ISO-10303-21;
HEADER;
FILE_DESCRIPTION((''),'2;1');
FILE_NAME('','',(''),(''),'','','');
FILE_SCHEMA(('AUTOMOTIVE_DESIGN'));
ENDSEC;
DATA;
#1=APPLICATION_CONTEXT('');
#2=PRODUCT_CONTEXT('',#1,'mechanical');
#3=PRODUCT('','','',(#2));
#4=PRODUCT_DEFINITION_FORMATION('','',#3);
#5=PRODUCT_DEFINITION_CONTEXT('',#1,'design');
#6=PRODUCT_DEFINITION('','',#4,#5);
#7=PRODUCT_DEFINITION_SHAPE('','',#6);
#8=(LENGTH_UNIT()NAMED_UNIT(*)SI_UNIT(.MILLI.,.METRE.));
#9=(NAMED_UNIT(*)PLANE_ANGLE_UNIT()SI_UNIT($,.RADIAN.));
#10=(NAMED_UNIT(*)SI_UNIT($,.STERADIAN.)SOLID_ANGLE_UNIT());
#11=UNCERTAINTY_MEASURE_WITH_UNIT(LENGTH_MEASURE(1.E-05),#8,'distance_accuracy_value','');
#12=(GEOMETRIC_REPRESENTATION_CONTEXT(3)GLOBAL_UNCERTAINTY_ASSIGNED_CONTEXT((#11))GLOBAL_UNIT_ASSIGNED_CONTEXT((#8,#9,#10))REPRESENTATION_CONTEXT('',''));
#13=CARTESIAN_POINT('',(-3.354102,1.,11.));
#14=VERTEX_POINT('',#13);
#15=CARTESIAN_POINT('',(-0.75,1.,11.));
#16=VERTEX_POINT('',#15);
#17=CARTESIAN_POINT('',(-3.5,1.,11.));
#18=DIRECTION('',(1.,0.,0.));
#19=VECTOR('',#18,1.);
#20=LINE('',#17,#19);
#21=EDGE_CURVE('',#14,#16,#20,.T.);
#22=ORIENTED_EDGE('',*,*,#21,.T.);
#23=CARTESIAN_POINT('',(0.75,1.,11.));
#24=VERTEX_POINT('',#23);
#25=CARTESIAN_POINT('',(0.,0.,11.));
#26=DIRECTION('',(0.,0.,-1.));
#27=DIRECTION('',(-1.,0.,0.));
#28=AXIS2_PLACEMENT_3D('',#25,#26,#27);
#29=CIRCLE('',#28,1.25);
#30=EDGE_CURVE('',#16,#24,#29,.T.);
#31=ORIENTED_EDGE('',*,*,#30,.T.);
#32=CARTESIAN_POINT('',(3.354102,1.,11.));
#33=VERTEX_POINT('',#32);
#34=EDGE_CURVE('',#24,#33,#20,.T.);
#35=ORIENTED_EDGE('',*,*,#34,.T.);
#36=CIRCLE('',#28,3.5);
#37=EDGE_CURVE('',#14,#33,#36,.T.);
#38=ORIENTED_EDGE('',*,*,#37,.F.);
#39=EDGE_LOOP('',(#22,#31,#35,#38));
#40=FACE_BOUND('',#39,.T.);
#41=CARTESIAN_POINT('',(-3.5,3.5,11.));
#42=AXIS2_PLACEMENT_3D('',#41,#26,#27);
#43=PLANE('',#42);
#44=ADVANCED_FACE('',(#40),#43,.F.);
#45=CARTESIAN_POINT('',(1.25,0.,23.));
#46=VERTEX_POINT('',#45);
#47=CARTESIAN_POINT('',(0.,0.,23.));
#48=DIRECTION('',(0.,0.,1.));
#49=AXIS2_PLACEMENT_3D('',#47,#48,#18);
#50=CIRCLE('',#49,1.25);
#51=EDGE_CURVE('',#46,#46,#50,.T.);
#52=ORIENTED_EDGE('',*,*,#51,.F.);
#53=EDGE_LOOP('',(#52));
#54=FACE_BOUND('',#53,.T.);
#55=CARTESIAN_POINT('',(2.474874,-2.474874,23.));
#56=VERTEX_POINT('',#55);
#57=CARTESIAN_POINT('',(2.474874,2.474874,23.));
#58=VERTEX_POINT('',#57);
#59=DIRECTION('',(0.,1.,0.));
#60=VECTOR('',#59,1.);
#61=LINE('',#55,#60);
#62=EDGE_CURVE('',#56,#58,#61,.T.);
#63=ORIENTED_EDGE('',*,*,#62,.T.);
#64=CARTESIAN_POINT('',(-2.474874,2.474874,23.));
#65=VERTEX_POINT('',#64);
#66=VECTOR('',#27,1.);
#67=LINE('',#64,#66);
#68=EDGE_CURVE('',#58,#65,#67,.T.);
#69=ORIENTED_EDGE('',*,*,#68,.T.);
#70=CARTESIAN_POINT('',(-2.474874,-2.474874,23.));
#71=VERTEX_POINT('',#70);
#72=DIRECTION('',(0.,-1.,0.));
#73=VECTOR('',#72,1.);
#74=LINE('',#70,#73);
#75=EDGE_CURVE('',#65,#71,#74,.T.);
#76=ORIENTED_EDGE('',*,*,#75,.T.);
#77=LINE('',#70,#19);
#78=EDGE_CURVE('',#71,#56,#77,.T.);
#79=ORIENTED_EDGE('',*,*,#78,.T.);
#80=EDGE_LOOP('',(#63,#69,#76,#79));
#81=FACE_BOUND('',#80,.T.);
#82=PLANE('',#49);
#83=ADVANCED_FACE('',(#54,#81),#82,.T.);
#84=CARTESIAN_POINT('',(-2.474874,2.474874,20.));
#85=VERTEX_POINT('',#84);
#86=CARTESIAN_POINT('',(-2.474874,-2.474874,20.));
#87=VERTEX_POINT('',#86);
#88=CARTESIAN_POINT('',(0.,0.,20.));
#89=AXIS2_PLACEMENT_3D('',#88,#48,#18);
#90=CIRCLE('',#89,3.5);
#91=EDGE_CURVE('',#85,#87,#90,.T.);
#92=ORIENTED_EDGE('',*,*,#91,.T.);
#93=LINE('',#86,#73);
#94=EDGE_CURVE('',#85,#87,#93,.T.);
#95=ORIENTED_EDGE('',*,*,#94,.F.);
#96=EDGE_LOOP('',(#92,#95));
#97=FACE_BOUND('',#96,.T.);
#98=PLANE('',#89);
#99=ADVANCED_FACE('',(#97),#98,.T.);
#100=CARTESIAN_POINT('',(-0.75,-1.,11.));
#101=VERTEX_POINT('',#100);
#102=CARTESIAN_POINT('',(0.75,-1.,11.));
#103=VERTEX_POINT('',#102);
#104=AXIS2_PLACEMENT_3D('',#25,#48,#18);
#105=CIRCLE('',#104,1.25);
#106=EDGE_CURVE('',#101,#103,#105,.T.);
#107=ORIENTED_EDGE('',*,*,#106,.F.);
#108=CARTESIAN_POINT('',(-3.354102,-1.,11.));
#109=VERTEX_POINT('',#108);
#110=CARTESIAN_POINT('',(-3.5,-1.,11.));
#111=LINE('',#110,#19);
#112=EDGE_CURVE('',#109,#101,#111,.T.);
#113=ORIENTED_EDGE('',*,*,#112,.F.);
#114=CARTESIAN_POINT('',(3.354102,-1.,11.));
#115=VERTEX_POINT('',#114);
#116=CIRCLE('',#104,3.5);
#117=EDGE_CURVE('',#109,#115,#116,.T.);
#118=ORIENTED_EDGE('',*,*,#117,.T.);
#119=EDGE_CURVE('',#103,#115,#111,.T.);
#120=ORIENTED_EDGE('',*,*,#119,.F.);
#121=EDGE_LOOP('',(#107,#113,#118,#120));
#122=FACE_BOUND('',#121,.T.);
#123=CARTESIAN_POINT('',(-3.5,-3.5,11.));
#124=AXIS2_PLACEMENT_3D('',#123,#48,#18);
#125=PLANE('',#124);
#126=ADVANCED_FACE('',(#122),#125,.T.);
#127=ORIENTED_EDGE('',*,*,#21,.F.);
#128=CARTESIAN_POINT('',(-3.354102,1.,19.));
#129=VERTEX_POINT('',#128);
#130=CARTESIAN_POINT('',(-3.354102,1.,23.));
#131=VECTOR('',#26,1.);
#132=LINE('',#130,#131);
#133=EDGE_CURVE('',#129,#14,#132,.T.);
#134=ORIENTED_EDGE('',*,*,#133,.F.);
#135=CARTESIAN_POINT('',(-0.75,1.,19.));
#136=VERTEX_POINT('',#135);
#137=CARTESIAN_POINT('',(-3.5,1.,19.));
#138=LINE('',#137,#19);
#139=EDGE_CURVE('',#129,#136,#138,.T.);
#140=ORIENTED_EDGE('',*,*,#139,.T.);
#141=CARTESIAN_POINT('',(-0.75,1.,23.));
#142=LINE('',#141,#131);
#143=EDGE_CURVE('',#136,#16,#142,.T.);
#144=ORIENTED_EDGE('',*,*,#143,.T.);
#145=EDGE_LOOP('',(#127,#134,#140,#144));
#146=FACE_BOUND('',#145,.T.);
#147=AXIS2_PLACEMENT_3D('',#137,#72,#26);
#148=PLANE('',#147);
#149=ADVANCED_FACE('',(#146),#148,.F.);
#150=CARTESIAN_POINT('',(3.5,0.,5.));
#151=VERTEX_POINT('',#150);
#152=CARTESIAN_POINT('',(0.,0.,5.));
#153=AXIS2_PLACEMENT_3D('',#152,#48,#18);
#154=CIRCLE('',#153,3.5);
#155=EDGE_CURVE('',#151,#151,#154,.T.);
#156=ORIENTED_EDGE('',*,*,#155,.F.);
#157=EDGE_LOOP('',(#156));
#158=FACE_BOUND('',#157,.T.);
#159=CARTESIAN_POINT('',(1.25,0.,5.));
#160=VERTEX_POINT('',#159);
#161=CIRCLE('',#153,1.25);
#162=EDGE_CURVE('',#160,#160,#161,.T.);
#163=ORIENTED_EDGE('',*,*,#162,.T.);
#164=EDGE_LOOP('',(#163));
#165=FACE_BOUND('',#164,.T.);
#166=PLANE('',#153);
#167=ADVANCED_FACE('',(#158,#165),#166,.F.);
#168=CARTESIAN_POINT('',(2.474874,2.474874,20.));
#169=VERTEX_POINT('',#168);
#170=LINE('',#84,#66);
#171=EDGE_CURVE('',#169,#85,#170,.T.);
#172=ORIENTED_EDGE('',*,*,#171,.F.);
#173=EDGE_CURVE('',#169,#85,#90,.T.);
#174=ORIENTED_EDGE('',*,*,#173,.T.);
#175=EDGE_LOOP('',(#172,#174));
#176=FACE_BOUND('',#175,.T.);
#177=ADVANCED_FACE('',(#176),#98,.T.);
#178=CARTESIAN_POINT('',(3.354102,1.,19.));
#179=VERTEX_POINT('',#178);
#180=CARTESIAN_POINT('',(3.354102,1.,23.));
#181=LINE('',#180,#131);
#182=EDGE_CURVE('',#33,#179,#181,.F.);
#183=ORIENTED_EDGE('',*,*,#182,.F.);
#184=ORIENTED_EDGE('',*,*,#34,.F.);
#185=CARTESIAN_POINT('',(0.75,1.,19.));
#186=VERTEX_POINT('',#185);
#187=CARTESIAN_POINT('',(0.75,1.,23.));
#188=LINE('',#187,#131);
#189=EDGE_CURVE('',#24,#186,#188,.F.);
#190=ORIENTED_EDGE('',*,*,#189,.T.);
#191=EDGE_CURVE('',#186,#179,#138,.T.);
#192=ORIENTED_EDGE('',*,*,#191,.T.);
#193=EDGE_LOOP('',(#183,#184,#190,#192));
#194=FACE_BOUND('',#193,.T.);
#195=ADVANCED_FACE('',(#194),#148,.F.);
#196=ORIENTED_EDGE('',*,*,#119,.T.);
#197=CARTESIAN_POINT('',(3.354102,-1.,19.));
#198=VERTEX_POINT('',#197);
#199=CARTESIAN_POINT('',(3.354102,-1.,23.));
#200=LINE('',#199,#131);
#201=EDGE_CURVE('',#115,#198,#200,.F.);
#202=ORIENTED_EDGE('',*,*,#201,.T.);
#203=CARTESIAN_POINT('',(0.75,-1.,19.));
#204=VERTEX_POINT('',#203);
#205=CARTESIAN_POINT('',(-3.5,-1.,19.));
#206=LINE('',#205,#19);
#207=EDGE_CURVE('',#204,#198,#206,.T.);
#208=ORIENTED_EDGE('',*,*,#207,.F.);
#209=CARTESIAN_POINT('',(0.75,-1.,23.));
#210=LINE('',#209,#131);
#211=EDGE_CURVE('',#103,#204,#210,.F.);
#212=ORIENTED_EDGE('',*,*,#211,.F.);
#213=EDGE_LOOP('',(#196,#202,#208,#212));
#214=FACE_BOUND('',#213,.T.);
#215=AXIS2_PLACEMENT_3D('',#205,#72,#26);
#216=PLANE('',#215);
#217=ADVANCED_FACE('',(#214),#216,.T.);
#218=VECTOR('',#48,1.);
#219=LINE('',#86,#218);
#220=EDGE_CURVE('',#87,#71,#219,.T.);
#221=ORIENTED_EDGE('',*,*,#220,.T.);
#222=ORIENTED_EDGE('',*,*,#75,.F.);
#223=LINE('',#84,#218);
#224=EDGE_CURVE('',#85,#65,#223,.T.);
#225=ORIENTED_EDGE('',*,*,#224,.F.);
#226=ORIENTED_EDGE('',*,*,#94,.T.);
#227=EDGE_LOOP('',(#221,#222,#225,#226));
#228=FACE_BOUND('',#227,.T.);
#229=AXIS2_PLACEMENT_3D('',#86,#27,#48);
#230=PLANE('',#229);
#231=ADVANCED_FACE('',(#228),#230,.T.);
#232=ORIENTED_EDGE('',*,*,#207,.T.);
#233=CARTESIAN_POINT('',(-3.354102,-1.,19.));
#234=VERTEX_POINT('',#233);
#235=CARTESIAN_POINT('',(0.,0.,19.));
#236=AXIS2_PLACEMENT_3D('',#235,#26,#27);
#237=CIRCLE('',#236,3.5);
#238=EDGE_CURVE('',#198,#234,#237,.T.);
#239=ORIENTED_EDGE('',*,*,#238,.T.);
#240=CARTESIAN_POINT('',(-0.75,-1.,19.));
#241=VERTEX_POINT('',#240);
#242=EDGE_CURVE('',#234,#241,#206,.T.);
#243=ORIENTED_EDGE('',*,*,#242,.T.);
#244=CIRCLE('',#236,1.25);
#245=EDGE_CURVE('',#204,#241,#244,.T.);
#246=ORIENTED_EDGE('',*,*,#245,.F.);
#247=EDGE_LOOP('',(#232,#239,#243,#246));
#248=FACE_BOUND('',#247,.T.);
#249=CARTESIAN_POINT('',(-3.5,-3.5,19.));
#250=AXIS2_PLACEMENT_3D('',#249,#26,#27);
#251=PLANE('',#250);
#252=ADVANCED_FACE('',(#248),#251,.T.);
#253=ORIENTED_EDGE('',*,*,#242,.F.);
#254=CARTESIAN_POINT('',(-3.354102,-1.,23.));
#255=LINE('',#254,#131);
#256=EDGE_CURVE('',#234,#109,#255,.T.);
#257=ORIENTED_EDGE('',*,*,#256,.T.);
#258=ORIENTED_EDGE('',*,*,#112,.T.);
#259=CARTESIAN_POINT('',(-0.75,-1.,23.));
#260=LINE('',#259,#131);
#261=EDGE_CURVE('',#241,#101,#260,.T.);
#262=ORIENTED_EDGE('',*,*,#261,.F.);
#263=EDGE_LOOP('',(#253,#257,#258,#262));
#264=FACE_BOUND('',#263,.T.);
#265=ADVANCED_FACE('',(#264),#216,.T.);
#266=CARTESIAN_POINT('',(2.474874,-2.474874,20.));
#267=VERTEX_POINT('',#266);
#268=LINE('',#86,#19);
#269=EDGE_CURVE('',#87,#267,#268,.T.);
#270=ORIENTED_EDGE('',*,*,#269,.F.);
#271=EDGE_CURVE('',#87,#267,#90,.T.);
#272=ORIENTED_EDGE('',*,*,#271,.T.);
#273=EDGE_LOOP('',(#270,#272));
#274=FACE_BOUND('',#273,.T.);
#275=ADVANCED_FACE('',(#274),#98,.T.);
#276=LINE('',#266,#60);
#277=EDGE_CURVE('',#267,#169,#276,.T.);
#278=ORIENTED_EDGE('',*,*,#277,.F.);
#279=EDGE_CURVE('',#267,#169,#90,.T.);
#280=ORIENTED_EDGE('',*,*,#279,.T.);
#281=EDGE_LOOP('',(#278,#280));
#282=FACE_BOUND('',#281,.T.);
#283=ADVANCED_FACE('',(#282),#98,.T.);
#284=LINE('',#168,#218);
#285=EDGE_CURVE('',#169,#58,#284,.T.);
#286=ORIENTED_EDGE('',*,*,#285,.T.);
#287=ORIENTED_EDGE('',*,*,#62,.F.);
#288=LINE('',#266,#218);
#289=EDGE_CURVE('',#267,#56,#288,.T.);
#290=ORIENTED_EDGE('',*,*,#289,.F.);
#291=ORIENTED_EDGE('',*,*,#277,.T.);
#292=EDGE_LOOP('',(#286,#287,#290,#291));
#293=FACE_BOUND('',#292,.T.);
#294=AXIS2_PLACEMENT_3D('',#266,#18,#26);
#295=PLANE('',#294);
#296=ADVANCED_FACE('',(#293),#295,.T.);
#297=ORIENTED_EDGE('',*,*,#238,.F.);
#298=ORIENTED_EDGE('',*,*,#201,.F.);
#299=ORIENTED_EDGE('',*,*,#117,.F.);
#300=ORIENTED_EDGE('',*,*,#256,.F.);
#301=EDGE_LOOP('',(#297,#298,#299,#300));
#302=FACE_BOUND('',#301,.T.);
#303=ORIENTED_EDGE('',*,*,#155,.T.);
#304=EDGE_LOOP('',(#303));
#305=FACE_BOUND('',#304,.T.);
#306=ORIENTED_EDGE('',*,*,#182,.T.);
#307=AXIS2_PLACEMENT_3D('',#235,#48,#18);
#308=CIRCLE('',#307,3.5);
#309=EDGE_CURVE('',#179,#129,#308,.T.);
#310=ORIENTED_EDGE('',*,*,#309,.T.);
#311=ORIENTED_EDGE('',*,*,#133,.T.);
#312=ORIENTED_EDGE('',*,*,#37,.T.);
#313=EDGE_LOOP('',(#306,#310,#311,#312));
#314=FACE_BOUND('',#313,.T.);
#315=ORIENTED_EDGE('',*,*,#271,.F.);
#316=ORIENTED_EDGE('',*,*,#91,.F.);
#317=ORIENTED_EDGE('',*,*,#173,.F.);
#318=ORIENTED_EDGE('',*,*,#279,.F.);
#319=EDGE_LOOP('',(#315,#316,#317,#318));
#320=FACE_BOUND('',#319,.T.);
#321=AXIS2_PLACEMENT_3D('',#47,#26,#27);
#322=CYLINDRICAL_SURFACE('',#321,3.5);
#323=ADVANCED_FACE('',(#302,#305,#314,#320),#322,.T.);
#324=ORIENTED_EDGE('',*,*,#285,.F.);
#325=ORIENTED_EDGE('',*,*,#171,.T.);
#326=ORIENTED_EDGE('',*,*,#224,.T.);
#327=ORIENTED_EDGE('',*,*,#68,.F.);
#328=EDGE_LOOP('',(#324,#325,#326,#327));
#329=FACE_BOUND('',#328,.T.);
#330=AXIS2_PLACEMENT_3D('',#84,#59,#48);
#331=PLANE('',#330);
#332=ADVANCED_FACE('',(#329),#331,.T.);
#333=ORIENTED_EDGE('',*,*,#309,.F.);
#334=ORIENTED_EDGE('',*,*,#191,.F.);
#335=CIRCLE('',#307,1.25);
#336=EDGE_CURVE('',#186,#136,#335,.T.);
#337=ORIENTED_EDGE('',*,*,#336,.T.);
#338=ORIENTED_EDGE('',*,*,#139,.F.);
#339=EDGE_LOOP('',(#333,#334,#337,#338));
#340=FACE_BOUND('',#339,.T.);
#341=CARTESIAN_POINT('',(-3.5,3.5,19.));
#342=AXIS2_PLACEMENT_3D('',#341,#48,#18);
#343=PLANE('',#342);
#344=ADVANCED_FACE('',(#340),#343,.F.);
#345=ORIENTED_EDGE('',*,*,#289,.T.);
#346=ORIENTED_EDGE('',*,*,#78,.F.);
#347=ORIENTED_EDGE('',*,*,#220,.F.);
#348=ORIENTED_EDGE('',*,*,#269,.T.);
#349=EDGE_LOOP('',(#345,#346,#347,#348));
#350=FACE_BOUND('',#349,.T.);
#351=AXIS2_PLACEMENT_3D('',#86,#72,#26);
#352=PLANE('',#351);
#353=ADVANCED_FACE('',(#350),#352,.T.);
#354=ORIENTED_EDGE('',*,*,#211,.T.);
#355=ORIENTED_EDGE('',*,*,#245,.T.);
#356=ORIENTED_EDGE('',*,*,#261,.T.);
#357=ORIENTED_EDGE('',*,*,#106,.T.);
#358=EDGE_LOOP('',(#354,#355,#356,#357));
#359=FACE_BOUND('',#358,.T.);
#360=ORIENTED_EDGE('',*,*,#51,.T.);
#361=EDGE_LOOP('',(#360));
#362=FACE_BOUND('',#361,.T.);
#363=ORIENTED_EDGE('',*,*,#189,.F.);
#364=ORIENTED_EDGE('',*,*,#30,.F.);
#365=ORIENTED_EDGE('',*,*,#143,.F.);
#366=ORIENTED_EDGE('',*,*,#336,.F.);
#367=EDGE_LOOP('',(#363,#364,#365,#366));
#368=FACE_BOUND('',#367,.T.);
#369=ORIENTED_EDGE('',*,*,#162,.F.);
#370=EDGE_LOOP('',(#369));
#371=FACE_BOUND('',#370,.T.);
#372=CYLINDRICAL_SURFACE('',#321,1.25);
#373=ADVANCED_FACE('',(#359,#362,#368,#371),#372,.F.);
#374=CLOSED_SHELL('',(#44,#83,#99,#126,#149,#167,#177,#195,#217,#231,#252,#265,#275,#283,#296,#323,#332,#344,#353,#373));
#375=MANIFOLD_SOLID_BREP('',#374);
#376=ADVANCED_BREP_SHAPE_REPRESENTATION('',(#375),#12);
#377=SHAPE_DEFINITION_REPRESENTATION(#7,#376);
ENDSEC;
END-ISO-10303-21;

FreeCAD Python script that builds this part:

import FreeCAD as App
import Part
import Sketcher

V = App.Vector
Q = App.Units.Quantity


def add_polygon(sketch, points):
    """Adds a closed chain of lines whose ends are joined by coincident constraints."""
    first, n = sketch.GeometryCount, len(points)
    for a, b in zip(points, points[1:] + points[:1]):
        sketch.addGeometry(Part.LineSegment(App.Vector(*a, 0), App.Vector(*b, 0)), False)
    for i in range(n):
        sketch.addConstraint(Sketcher.Constraint("Coincident", first + i, 2, first + (i + 1) % n, 1))

doc = App.newDocument("Part")
body = doc.addObject("PartDesign::Body", "Body")

sketch1 = body.newObject("Sketcher::SketchObject", "Sketch")
sketch1.AttachmentSupport = (doc.getObject("XY_Plane"), [""])
sketch1.MapMode = "FlatFace"
sketch1.AttachmentOffset = App.Placement(V(0, 0, 5), App.Rotation())
sketch1.addGeometry([
    Part.Circle(V(0, 0, 0), V(0, 0, 1), 3.5),
    Part.Circle(V(0, 0, 0), V(0, 0, 1), 1.2),
], False)
sketch1.addConstraint([
    Sketcher.Constraint("Coincident", 0, 3, -1, 1),
    Sketcher.Constraint("Coincident", 1, 3, -1, 1),
    Sketcher.Constraint("Diameter", 0, Q("7 mm")),
    Sketcher.Constraint("Diameter", 1, Q("2.5 mm")),
])
pad1 = body.newObject("PartDesign::Pad", "Pad")
pad1.Profile = sketch1
pad1.Length = 18

sketch2 = body.newObject("Sketcher::SketchObject", "Sketch001")
sketch2.AttachmentSupport = (doc.getObject("YZ_Plane"), [""])
sketch2.MapMode = "FlatFace"
add_polygon(sketch2, [(3.5, 19), (1, 19), (1, 11), (3.5, 11)])
sketch2.addConstraint([
    Sketcher.Constraint("Horizontal", 0),
    Sketcher.Constraint("Vertical", 1),
    Sketcher.Constraint("Horizontal", 2),
    Sketcher.Constraint("Vertical", 3),
    Sketcher.Constraint("DistanceY", 1, 2, 1, 1, Q("8 mm")),
    Sketcher.Constraint("DistanceX", 0, 2, 0, 1, Q("2.5 mm")),
    Sketcher.Constraint("DistanceX", -1, 1, 0, 2, Q("1 mm")),
    Sketcher.Constraint("DistanceY", -1, 1, 0, 2, Q("19 mm")),
])
pocket1 = body.newObject("PartDesign::Pocket", "Pocket")
pocket1.Profile = sketch2
pocket1.Length = 9
pocket1.Midplane = True
doc.recompute()

mirrored = body.newObject("PartDesign::Mirrored", "Mirrored")
mirrored.Originals = [pocket1]
mirrored.MirrorPlane = (doc.getObject("XZ_Plane"), [""])
body.Tip = mirrored

sketch3 = body.newObject("Sketcher::SketchObject", "Sketch002")
sketch3.AttachmentSupport = (doc.getObject("XY_Plane"), [""])
sketch3.MapMode = "FlatFace"
sketch3.AttachmentOffset = App.Placement(V(0, 0, 23), App.Rotation())
add_polygon(sketch3, [(-6.6, 6.6), (-6.6, -6.6), (6.6, -6.6), (6.6, 6.6)])
add_polygon(sketch3, [(2.5, -2.5), (-2.5, -2.5), (-2.5, 2.5), (2.5, 2.5)])
sketch3.addConstraint([
    Sketcher.Constraint("Vertical", 0),
    Sketcher.Constraint("Horizontal", 1),
    Sketcher.Constraint("Vertical", 2),
    Sketcher.Constraint("Horizontal", 3),
    Sketcher.Constraint("Horizontal", 4),
    Sketcher.Constraint("Vertical", 5),
    Sketcher.Constraint("Horizontal", 6),
    Sketcher.Constraint("Vertical", 7),
    Sketcher.Constraint("Symmetric", 0, 2, 2, 2, -1, 1),
    Sketcher.Constraint("Symmetric", 4, 2, 6, 2, -1, 1),
    Sketcher.Constraint("Equal", 3, 0),
    Sketcher.Constraint("Equal", 6, 5),
    Sketcher.Constraint("DistanceX", 1, 1, 1, 2, Q("13.108 mm")),
    Sketcher.Constraint("DistanceX", 4, 2, 4, 1, Q("4.949747 mm")),
])
pocket2 = body.newObject("PartDesign::Pocket", "Pocket001")
pocket2.Profile = sketch3
pocket2.Length = 3

doc.recompute()
